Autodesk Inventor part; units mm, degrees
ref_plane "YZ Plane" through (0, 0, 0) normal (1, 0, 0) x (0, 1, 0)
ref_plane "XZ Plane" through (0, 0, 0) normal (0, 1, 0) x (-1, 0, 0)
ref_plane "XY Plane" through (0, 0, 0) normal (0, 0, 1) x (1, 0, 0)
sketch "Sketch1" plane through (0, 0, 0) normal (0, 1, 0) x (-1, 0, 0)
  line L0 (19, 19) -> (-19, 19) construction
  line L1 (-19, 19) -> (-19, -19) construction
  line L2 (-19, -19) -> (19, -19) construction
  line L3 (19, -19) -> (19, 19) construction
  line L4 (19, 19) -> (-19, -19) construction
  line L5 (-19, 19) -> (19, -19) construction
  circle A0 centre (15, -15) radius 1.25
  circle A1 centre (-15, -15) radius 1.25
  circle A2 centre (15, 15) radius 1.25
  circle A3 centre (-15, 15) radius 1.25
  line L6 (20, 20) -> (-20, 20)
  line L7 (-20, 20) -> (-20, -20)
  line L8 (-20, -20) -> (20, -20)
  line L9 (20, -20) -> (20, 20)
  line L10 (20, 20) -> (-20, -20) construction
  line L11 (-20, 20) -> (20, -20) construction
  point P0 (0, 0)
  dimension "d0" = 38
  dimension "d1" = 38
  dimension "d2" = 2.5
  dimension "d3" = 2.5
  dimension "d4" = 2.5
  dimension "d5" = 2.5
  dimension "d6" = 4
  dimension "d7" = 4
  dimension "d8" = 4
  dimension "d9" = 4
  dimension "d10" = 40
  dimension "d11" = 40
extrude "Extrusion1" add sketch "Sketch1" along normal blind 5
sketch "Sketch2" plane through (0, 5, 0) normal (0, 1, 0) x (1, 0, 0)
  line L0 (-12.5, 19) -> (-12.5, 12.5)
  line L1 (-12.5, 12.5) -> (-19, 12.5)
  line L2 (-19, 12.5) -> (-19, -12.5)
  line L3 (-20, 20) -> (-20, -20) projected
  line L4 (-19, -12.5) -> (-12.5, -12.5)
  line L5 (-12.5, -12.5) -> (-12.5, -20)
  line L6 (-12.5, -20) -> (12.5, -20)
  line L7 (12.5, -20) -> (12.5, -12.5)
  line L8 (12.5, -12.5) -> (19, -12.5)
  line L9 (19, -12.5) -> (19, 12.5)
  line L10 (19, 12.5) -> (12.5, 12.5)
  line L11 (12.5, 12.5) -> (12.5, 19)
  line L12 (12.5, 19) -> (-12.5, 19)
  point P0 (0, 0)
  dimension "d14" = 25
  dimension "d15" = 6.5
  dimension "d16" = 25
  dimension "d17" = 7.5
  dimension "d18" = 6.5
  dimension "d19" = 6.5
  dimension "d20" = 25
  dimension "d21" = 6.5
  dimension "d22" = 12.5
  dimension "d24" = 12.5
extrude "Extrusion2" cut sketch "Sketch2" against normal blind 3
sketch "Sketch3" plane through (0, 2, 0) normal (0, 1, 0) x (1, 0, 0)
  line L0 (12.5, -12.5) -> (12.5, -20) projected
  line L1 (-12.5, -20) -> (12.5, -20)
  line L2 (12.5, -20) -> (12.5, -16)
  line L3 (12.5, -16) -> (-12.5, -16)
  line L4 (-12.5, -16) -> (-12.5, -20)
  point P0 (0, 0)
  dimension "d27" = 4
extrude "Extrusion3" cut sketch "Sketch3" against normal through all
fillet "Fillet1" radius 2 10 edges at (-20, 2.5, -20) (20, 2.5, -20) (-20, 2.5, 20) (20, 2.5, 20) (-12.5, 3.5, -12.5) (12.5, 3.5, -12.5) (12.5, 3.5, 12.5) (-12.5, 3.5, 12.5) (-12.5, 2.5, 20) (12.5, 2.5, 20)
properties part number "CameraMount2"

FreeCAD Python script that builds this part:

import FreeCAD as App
import Part
import Sketcher
from FreeCAD import Vector
Q = App.Units.Quantity


def edges_at(feature, points):
    """Names of the edges that pass closest to the given points."""
    edges = feature.Shape.Edges
    near = lambda p: min(range(len(edges)), key=lambda i: edges[i].distToShape(Part.Vertex(*p))[0])
    return sorted({f"Edge{near(p) + 1}" for p in points})

doc = App.newDocument("Part")
params = doc.addObject("Spreadsheet::Sheet", "Params")
for row, (alias, value) in enumerate([
    ("sketch1_diameter", "2.5 mm"),
    ("sketch1_width", "40 mm"),
    ("pad1_length", "5 mm"),
    ("sketch2_width", "25 mm"),
    ("sketch2_width2", "6.5 mm"),
    ("sketch2_height", "7.5 mm"),
    ("pocket1_length", "3 mm"),
    ("sketch3_height", "4 mm"),
    ("sketch3_width", "25 mm"),
    ("fillet_radius", "2 mm"),
], start=1):
    params.set(f"A{row}", alias)
    params.set(f"B{row}", "=" + value)
    params.setAlias(f"B{row}", alias)

body = doc.addObject("PartDesign::Body", "Body")

# Sketch on XZ plane
sketch1 = doc.addObject("Sketcher::SketchObject", "Sketch")
body.addObject(sketch1)
sketch1.AttachmentSupport = (doc.XZ_Plane, [""])
sketch1.MapMode = "FlatFace"
sketch1.addGeometry(Part.LineSegment(Vector(-20, -20, 0), Vector(-20, 20, 0)), False)
sketch1.addGeometry(Part.LineSegment(Vector(-20, 20, 0), Vector(20, 20, 0)), False)
sketch1.addGeometry(Part.LineSegment(Vector(20, 20, 0), Vector(20, -20, 0)), False)
sketch1.addGeometry(Part.LineSegment(Vector(20, -20, 0), Vector(-20, -20, 0)), False)
sketch1.addGeometry(Part.Circle(Vector(15, -15, 0), Vector(0, 0, 1), 1.2), False)
sketch1.addGeometry(Part.Circle(Vector(-15, -15, 0), Vector(0, 0, 1), 1.2), False)
sketch1.addGeometry(Part.Circle(Vector(15, 15, 0), Vector(0, 0, 1), 1.2), False)
sketch1.addGeometry(Part.Circle(Vector(-15, 15, 0), Vector(0, 0, 1), 1.2), False)
sketch1.addConstraint(Sketcher.Constraint("Coincident", 0, 2, 1, 1))
sketch1.addConstraint(Sketcher.Constraint("Coincident", 1, 2, 2, 1))
sketch1.addConstraint(Sketcher.Constraint("Coincident", 2, 2, 3, 1))
sketch1.addConstraint(Sketcher.Constraint("Coincident", 3, 2, 0, 1))
sketch1.addConstraint(Sketcher.Constraint("Vertical", 0))
sketch1.addConstraint(Sketcher.Constraint("Horizontal", 1))
sketch1.addConstraint(Sketcher.Constraint("Vertical", 2))
sketch1.addConstraint(Sketcher.Constraint("Horizontal", 3))
sketch1.addConstraint(Sketcher.Constraint("Equal", 4, 5))
sketch1.addConstraint(Sketcher.Constraint("Equal", 5, 6))
sketch1.addConstraint(Sketcher.Constraint("Equal", 6, 7))
sketch1.addConstraint(Sketcher.Constraint("Symmetric", 5, 3, 6, 3, -1, 1))
sketch1.addConstraint(Sketcher.Constraint("Symmetric", 4, 3, 7, 3, -1, 1))
sketch1.addConstraint(Sketcher.Constraint("Symmetric", 0, 2, 2, 2, -1, 1))
sketch1.addConstraint(Sketcher.Constraint("Symmetric", 4, 3, 5, 3, -2))
sketch1.addConstraint(Sketcher.Constraint("Equal", 3, 0))
sketch1.addConstraint(Sketcher.Constraint("Diameter", 4, Q("2.5 mm")))
sketch1.addConstraint(Sketcher.Constraint("DistanceX", 1, 1, 1, 2, Q("40 mm")))
sketch1.addConstraint(Sketcher.Constraint("DistanceX", -1, 1, 4, 3, Q("15 mm")))
sketch1.addConstraint(Sketcher.Constraint("DistanceY", 4, 3, -1, 1, Q("15 mm")))
sketch1.setExpression("Constraints[16]", "Params.sketch1_diameter")
sketch1.setExpression("Constraints[17]", "Params.sketch1_width")
pad1 = doc.addObject("PartDesign::Pad", "Pad")
body.addObject(pad1)
pad1.Profile = sketch1
pad1.setExpression("Length", "Params.pad1_length")
pad1.Reversed = True

# Sketch on XZ plane
sketch2 = doc.addObject("Sketcher::SketchObject", "Sketch001")
body.addObject(sketch2)
sketch2.AttachmentSupport = (doc.XZ_Plane, [""])
sketch2.MapMode = "FlatFace"
sketch2.AttachmentOffset = App.Placement(Vector(0, 0, -5), App.Rotation())
sketch2.addGeometry(Part.LineSegment(Vector(12, -19, 0), Vector(-12, -19, 0)), False)
sketch2.addGeometry(Part.LineSegment(Vector(-12, -19, 0), Vector(-12, -12, 0)), False)
sketch2.addGeometry(Part.LineSegment(Vector(-12, -12, 0), Vector(-19, -12, 0)), False)
sketch2.addGeometry(Part.LineSegment(Vector(-19, -12, 0), Vector(-19, 12, 0)), False)
sketch2.addGeometry(Part.LineSegment(Vector(-19, 12, 0), Vector(-12, 12, 0)), False)
sketch2.addGeometry(Part.LineSegment(Vector(-12, 12, 0), Vector(-12, 20, 0)), False)
sketch2.addGeometry(Part.LineSegment(Vector(-12, 20, 0), Vector(12, 20, 0)), False)
sketch2.addGeometry(Part.LineSegment(Vector(12, 20, 0), Vector(12, 12, 0)), False)
sketch2.addGeometry(Part.LineSegment(Vector(12, 12, 0), Vector(19, 12, 0)), False)
sketch2.addGeometry(Part.LineSegment(Vector(19, 12, 0), Vector(19, -12, 0)), False)
sketch2.addGeometry(Part.LineSegment(Vector(19, -12, 0), Vector(12, -12, 0)), False)
sketch2.addGeometry(Part.LineSegment(Vector(12, -12, 0), Vector(12, -19, 0)), False)
sketch2.addConstraint(Sketcher.Constraint("Coincident", 0, 2, 1, 1))
sketch2.addConstraint(Sketcher.Constraint("Coincident", 1, 2, 2, 1))
sketch2.addConstraint(Sketcher.Constraint("Coincident", 2, 2, 3, 1))
sketch2.addConstraint(Sketcher.Constraint("Coincident", 3, 2, 4, 1))
sketch2.addConstraint(Sketcher.Constraint("Coincident", 4, 2, 5, 1))
sketch2.addConstraint(Sketcher.Constraint("Coincident", 5, 2, 6, 1))
sketch2.addConstraint(Sketcher.Constraint("Coincident", 6, 2, 7, 1))
sketch2.addConstraint(Sketcher.Constraint("Coincident", 7, 2, 8, 1))
sketch2.addConstraint(Sketcher.Constraint("Coincident", 8, 2, 9, 1))
sketch2.addConstraint(Sketcher.Constraint("Coincident", 9, 2, 10, 1))
sketch2.addConstraint(Sketcher.Constraint("Coincident", 10, 2, 11, 1))
sketch2.addConstraint(Sketcher.Constraint("Coincident", 11, 2, 0, 1))
sketch2.addConstraint(Sketcher.Constraint("Horizontal", 0))
sketch2.addConstraint(Sketcher.Constraint("Vertical", 1))
sketch2.addConstraint(Sketcher.Constraint("Horizontal", 2))
sketch2.addConstraint(Sketcher.Constraint("Vertical", 3))
sketch2.addConstraint(Sketcher.Constraint("Horizontal", 4))
sketch2.addConstraint(Sketcher.Constraint("Vertical", 5))
sketch2.addConstraint(Sketcher.Constraint("Horizontal", 6))
sketch2.addConstraint(Sketcher.Constraint("Vertical", 7))
sketch2.addConstraint(Sketcher.Constraint("Horizontal", 8))
sketch2.addConstraint(Sketcher.Constraint("Vertical", 9))
sketch2.addConstraint(Sketcher.Constraint("Horizontal", 10))
sketch2.addConstraint(Sketcher.Constraint("Vertical", 11))
sketch2.addConstraint(Sketcher.Constraint("Symmetric", 1, 2, 7, 2, -1, 1))
sketch2.addConstraint(Sketcher.Constraint("Symmetric", 3, 2, 9, 2, -1, 1))
sketch2.addConstraint(Sketcher.Constraint("Symmetric", 4, 2, 7, 2, -2))
sketch2.addConstraint(Sketcher.Constraint("Vertical", 7, 2, 10, 2))
sketch2.addConstraint(Sketcher.Constraint("Equal", 10, 1))
sketch2.addConstraint(Sketcher.Constraint("Equal", 6, 3))
sketch2.addConstraint(Sketcher.Constraint("DistanceX", 0, 2, 0, 1, Q("25 mm")))
sketch2.addConstraint(Sketcher.Constraint("DistanceX", 2, 2, 2, 1, Q("6.5 mm")))
sketch2.addConstraint(Sketcher.Constraint("DistanceY", 5, 1, 5, 2, Q("7.5 mm")))
sketch2.setExpression("Constraints[30]", "Params.sketch2_width")
sketch2.setExpression("Constraints[31]", "Params.sketch2_width2")
sketch2.setExpression("Constraints[32]", "Params.sketch2_height")
pocket1 = doc.addObject("PartDesign::Pocket", "Pocket")
body.addObject(pocket1)
pocket1.Profile = sketch2
pocket1.setExpression("Length", "Params.pocket1_length")
pocket1.Reversed = True

# Sketch on XZ plane
sketch3 = doc.addObject("Sketcher::SketchObject", "Sketch002")
body.addObject(sketch3)
sketch3.AttachmentSupport = (doc.XZ_Plane, [""])
sketch3.MapMode = "FlatFace"
sketch3.AttachmentOffset = App.Placement(Vector(0, 0, -2), App.Rotation())
sketch3.addGeometry(Part.LineSegment(Vector(12.5, 20, 0), Vector(12.5, 16, 0)), False)
sketch3.addGeometry(Part.LineSegment(Vector(12.5, 16, 0), Vector(-12.5, 16, 0)), False)
sketch3.addGeometry(Part.LineSegment(Vector(-12.5, 16, 0), Vector(-12.5, 20, 0)), False)
sketch3.addGeometry(Part.LineSegment(Vector(-12.5, 20, 0), Vector(12.5, 20, 0)), False)
sketch3.addConstraint(Sketcher.Constraint("Coincident", 0, 2, 1, 1))
sketch3.addConstraint(Sketcher.Constraint("Coincident", 1, 2, 2, 1))
sketch3.addConstraint(Sketcher.Constraint("Coincident", 2, 2, 3, 1))
sketch3.addConstraint(Sketcher.Constraint("Coincident", 3, 2, 0, 1))
sketch3.addConstraint(Sketcher.Constraint("Vertical", 0))
sketch3.addConstraint(Sketcher.Constraint("Horizontal", 1))
sketch3.addConstraint(Sketcher.Constraint("Vertical", 2))
sketch3.addConstraint(Sketcher.Constraint("Horizontal", 3))
sketch3.addConstraint(Sketcher.Constraint("DistanceY", 0, 2, 0, 1, Q("4 mm")))
sketch3.addConstraint(Sketcher.Constraint("DistanceX", 1, 2, 1, 1, Q("25 mm")))
sketch3.addConstraint(Sketcher.Constraint("DistanceY", -1, 1, 0, 2, Q("16 mm")))
sketch3.addConstraint(Sketcher.Constraint("DistanceX", -1, 1, 0, 2, Q("12.5 mm")))
sketch3.setExpression("Constraints[8]", "Params.sketch3_height")
sketch3.setExpression("Constraints[9]", "Params.sketch3_width")
pocket2 = doc.addObject("PartDesign::Pocket", "Pocket001")
body.addObject(pocket2)
pocket2.Profile = sketch3
pocket2.Type = "ThroughAll"
pocket2.Reversed = True
doc.recompute()

fillet = doc.addObject("PartDesign::Fillet", "Fillet")
body.addObject(fillet)
fillet.Base = (pocket2, edges_at(pocket2, [
    (-20, 2.5, -20),
    (20, 2.5, -20),
    (-20, 2.5, 20),
    (20, 2.5, 20),
    (-12.5, 3.5, -12.5),
    (12.5, 3.5, -12.5),
    (12.5, 3.5, 12.5),
    (-12.5, 3.5, 12.5),
    (-12.5, 2.5, 20),
    (12.5, 2.5, 20),
]))
fillet.setExpression("Radius", "Params.fillet_radius")

doc.recompute()
